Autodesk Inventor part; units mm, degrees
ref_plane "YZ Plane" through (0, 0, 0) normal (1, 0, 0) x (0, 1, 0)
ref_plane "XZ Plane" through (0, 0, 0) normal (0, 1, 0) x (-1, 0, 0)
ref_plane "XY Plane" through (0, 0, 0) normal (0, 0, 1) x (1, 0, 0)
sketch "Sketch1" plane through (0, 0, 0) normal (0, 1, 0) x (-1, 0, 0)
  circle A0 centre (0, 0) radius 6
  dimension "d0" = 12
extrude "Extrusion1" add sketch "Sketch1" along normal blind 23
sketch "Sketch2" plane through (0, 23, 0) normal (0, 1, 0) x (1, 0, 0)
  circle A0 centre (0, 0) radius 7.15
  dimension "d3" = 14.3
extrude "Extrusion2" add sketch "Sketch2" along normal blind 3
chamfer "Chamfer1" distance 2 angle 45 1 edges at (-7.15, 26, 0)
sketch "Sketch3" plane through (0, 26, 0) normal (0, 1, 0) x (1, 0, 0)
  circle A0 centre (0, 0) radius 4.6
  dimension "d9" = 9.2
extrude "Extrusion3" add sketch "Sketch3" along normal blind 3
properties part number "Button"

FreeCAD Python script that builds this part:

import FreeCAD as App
import Part
import Sketcher
from FreeCAD import Vector


def edges_at(feature, points):
    """Names of the edges that pass closest to the given points."""
    edges = feature.Shape.Edges
    near = lambda p: min(range(len(edges)), key=lambda i: edges[i].distToShape(Part.Vertex(*p))[0])
    return sorted({f"Edge{near(p) + 1}" for p in points})

doc = App.newDocument("Part")
body = doc.addObject("PartDesign::Body", "Body")

sketch1 = doc.addObject("Sketcher::SketchObject", "Sketch")
body.addObject(sketch1)
sketch1.AttachmentSupport = (doc.XZ_Plane, [""])
sketch1.MapMode = "FlatFace"
sketch1.addGeometry(Part.Circle(Vector(0, 0, 0), Vector(0, 0, 1), 6), False)
sketch1.addConstraint([
    Sketcher.Constraint("Coincident", 0, 3, -1, 1),
    Sketcher.Constraint("Diameter", 0, 12.0),
])
pad1 = doc.addObject("PartDesign::Pad", "Pad")
body.addObject(pad1)
pad1.Profile = sketch1
pad1.Length = 23
pad1.Reversed = True

sketch2 = doc.addObject("Sketcher::SketchObject", "Sketch001")
body.addObject(sketch2)
sketch2.AttachmentSupport = (doc.XZ_Plane, [""])
sketch2.MapMode = "FlatFace"
sketch2.AttachmentOffset = App.Placement(Vector(0, 0, -23), App.Rotation())
sketch2.addGeometry(Part.Circle(Vector(0, 0, 0), Vector(0, 0, 1), 7.15), False)
sketch2.addConstraint([
    Sketcher.Constraint("Coincident", 0, 3, -1, 1),
    Sketcher.Constraint("Diameter", 0, 14.3),
])
pad2 = doc.addObject("PartDesign::Pad", "Pad001")
body.addObject(pad2)
pad2.Profile = sketch2
pad2.Length = 3
pad2.Reversed = True
doc.recompute()

chamfer = doc.addObject("PartDesign::Chamfer", "Chamfer")
body.addObject(chamfer)
chamfer.Base = (pad2, edges_at(pad2, [(-7.15, 26, 0)]))
chamfer.Size = 2

sketch3 = doc.addObject("Sketcher::SketchObject", "Sketch002")
body.addObject(sketch3)
sketch3.AttachmentSupport = (doc.XZ_Plane, [""])
sketch3.MapMode = "FlatFace"
sketch3.AttachmentOffset = App.Placement(Vector(0, 0, -26), App.Rotation())
sketch3.addGeometry(Part.Circle(Vector(0, 0, 0), Vector(0, 0, 1), 4.6), False)
sketch3.addConstraint([
    Sketcher.Constraint("Coincident", 0, 3, -1, 1),
    Sketcher.Constraint("Diameter", 0, 9.2),
])
pad3 = doc.addObject("PartDesign::Pad", "Pad002")
body.addObject(pad3)
pad3.Profile = sketch3
pad3.Length = 3
pad3.Reversed = True

doc.recompute()
